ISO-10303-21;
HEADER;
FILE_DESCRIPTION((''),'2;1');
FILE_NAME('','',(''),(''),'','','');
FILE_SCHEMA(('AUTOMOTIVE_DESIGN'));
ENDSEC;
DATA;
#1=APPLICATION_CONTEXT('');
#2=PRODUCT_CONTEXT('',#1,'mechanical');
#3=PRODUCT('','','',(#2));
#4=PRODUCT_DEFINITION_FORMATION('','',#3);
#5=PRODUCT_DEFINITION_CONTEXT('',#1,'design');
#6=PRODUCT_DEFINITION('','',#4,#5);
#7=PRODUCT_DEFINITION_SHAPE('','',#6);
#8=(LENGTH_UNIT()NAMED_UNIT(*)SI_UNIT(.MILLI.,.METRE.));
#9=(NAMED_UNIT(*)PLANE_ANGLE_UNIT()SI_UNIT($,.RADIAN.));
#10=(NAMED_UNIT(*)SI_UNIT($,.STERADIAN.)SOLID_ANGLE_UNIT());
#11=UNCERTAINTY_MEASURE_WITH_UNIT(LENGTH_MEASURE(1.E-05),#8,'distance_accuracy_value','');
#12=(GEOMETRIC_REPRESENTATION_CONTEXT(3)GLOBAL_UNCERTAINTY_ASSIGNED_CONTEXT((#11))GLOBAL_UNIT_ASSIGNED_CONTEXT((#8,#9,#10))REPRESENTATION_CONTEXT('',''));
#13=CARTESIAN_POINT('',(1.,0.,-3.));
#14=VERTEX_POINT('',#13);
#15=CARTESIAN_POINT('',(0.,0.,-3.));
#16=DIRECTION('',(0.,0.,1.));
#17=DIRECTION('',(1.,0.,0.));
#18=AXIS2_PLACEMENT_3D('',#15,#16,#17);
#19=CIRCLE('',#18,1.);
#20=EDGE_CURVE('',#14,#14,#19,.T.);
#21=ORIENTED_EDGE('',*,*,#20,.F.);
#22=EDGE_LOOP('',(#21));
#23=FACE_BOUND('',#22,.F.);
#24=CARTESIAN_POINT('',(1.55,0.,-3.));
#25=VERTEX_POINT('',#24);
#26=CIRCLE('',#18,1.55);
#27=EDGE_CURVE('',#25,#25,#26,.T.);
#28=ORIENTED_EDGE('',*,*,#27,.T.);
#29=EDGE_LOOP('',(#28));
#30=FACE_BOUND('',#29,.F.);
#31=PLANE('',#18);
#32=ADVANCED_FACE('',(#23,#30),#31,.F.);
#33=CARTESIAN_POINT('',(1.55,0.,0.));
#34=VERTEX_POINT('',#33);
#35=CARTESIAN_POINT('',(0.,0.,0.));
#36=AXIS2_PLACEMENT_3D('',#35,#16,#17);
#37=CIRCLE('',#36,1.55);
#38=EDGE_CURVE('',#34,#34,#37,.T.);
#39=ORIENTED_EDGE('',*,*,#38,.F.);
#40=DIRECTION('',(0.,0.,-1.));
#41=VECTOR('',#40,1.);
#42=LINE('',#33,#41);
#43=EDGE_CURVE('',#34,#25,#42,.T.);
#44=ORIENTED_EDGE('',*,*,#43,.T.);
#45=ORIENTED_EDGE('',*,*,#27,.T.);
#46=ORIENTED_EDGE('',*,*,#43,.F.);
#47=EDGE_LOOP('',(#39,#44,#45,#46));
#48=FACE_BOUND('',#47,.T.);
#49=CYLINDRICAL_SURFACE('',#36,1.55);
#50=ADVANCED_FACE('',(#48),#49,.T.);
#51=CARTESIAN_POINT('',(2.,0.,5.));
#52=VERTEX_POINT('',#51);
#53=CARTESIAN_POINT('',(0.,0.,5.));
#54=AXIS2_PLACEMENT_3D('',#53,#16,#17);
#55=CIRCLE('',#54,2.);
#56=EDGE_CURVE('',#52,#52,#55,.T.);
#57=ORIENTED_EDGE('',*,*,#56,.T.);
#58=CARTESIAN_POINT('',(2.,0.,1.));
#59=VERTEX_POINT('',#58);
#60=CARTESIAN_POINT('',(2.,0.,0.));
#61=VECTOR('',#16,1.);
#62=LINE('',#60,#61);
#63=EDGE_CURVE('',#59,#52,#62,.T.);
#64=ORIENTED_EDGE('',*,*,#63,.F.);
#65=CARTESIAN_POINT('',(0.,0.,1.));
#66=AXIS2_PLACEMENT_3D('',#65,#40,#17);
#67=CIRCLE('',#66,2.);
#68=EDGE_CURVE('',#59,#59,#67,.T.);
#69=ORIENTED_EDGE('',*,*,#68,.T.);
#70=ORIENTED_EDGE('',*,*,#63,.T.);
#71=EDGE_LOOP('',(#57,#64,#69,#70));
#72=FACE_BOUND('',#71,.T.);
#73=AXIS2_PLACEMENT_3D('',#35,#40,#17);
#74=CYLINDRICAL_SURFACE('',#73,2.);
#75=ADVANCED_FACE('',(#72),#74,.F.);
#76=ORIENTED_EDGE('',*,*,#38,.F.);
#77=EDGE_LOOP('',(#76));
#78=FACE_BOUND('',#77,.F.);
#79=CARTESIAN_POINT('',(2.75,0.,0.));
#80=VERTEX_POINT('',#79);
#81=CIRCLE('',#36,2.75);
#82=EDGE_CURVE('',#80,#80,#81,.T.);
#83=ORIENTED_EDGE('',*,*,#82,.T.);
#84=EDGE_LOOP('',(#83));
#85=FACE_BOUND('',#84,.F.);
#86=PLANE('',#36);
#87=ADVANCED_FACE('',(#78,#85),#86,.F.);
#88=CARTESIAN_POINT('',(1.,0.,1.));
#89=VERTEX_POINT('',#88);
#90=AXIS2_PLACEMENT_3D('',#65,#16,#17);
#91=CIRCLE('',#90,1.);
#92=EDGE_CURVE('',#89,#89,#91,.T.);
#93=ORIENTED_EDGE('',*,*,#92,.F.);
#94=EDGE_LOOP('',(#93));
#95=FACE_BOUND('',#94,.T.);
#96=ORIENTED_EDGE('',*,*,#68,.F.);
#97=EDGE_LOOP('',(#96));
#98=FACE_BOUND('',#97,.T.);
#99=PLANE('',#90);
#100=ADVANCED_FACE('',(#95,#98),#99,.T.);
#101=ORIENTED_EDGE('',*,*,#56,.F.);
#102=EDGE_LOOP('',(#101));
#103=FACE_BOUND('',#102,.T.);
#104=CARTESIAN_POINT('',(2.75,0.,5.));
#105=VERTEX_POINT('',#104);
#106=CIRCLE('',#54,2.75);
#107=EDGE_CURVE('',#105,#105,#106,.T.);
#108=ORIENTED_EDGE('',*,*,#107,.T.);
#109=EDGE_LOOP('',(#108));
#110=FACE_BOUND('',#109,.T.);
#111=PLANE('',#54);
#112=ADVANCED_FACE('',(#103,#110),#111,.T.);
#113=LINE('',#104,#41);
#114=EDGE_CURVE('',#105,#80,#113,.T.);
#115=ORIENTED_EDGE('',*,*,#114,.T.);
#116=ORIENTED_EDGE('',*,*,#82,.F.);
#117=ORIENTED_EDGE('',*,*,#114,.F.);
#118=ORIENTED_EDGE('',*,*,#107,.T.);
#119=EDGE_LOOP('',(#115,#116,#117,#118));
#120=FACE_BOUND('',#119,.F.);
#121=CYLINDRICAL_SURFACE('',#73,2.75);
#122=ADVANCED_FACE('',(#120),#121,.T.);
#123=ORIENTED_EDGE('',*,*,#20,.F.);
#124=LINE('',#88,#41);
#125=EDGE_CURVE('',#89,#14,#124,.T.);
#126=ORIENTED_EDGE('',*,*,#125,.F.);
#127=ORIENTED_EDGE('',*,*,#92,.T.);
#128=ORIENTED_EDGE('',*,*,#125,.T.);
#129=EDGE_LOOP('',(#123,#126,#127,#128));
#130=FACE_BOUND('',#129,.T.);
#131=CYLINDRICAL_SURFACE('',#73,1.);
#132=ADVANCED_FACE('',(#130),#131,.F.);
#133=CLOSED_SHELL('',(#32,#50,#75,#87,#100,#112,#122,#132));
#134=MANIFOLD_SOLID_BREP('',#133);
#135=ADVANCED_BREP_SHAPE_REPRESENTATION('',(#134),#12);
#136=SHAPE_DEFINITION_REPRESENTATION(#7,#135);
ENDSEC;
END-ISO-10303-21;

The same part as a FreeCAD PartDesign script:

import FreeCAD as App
import Part
import Sketcher

V = App.Vector
Q = App.Units.Quantity

doc = App.newDocument("Part")
params = doc.addObject("Spreadsheet::Sheet", "Params")
for row, (alias, value) in enumerate([
    ("sketch1_diameter", "4 mm"),
    ("sketch1_diameter2", "5.5 mm"),
    ("pad1_length", "5 mm"),
    ("sketch2_diameter", "5.5 mm"),
    ("sketch2_diameter2", "3.1 mm"),
    ("pad2_length", "1 mm"),
    ("sketch3_diameter", "2 mm"),
    ("sketch3_diameter2", "3.1 mm"),
    ("pad3_length", "3 mm"),
    ("sketch4_diameter", "2 mm"),
    ("sketch4_diameter2", "3.1 mm"),
    ("pad4_length", "1 mm"),
], start=1):
    params.set(f"A{row}", alias)
    params.set(f"B{row}", "=" + value)
    params.setAlias(f"B{row}", alias)

body = doc.addObject("PartDesign::Body", "Body")
body.AllowCompound = True

sketch1 = body.newObject("Sketcher::SketchObject", "Sketch")
sketch1.AttachmentSupport = (doc.getObject("XY_Plane"), [""])
sketch1.MapMode = "FlatFace"
sketch1.addGeometry([
    Part.Circle(V(0, 0, 0), V(0, 0, 1), 2.75),
    Part.Circle(V(0, 0, 0), V(0, 0, 1), 2),
], False)
sketch1.addConstraint([
    Sketcher.Constraint("Coincident", 0, 3, -1, 1),
    Sketcher.Constraint("Coincident", 1, 3, -1, 1),
    Sketcher.Constraint("Diameter", 1, Q("4 mm")),
    Sketcher.Constraint("Diameter", 0, Q("5.5 mm")),
])
sketch1.setExpression("Constraints[2]", "Params.sketch1_diameter")
sketch1.setExpression("Constraints[3]", "Params.sketch1_diameter2")
pad1 = body.newObject("PartDesign::Pad", "Pad")
pad1.Profile = sketch1
pad1.setExpression("Length", "Params.pad1_length")

sketch2 = body.newObject("Sketcher::SketchObject", "Sketch001")
sketch2.AttachmentSupport = (doc.getObject("XY_Plane"), [""])
sketch2.MapMode = "FlatFace"
sketch2.addGeometry([
    Part.Circle(V(0, 0, 0), V(0, 0, 1), 2.75),
    Part.Circle(V(0, 0, 0), V(0, 0, 1), 1.55),
], False)
sketch2.addConstraint([
    Sketcher.Constraint("Coincident", 0, 3, -1, 1),
    Sketcher.Constraint("Coincident", 1, 3, -1, 1),
    Sketcher.Constraint("Diameter", 0, Q("5.5 mm")),
    Sketcher.Constraint("Diameter", 1, Q("3.1 mm")),
])
sketch2.setExpression("Constraints[2]", "Params.sketch2_diameter")
sketch2.setExpression("Constraints[3]", "Params.sketch2_diameter2")
pad2 = body.newObject("PartDesign::Pad", "Pad001")
pad2.Profile = sketch2
pad2.setExpression("Length", "Params.pad2_length")

sketch3 = body.newObject("Sketcher::SketchObject", "Sketch002")
sketch3.AttachmentSupport = (doc.getObject("XY_Plane"), [""])
sketch3.MapMode = "FlatFace"
sketch3.addGeometry([
    Part.Circle(V(0, 0, 0), V(0, 0, 1), 1.55),
    Part.Circle(V(0, 0, 0), V(0, 0, 1), 1),
], False)
sketch3.addConstraint([
    Sketcher.Constraint("Coincident", 0, 3, -1, 1),
    Sketcher.Constraint("Coincident", 1, 3, -1, 1),
    Sketcher.Constraint("Diameter", 1, Q("2 mm")),
    Sketcher.Constraint("Diameter", 0, Q("3.1 mm")),
])
sketch3.setExpression("Constraints[2]", "Params.sketch3_diameter")
sketch3.setExpression("Constraints[3]", "Params.sketch3_diameter2")
pad3 = body.newObject("PartDesign::Pad", "Pad002")
pad3.Profile = sketch3
pad3.setExpression("Length", "Params.pad3_length")
pad3.Reversed = True

sketch4 = body.newObject("Sketcher::SketchObject", "Sketch003")
sketch4.AttachmentSupport = (doc.getObject("XY_Plane"), [""])
sketch4.MapMode = "FlatFace"
sketch4.addGeometry([
    Part.Circle(V(0, 0, 0), V(0, 0, 1), 1.55),
    Part.Circle(V(0, 0, 0), V(0, 0, 1), 1),
], False)
sketch4.addConstraint([
    Sketcher.Constraint("Coincident", 0, 3, -1, 1),
    Sketcher.Constraint("Coincident", 1, 3, -1, 1),
    Sketcher.Constraint("Diameter", 1, Q("2 mm")),
    Sketcher.Constraint("Diameter", 0, Q("3.1 mm")),
])
sketch4.setExpression("Constraints[2]", "Params.sketch4_diameter")
sketch4.setExpression("Constraints[3]", "Params.sketch4_diameter2")
pad4 = body.newObject("PartDesign::Pad", "Pad003")
pad4.Profile = sketch4
pad4.setExpression("Length", "Params.pad4_length")

doc.recompute()
